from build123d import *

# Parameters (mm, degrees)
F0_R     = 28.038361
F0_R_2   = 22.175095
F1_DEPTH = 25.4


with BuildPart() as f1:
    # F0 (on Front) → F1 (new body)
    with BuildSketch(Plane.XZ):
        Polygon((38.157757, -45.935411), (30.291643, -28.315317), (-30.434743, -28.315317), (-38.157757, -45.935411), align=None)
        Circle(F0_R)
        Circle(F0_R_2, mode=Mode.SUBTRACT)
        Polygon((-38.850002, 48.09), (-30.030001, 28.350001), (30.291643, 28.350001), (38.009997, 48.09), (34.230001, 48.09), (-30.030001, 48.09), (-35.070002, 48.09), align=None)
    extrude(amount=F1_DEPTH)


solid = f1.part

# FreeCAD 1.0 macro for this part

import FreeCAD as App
import Part
import Sketcher
Q = App.Units.Quantity


def add_polygon(sketch, points):
    """Adds a closed chain of lines whose ends are joined by coincident constraints."""
    first, n = sketch.GeometryCount, len(points)
    for a, b in zip(points, points[1:] + points[:1]):
        sketch.addGeometry(Part.LineSegment(App.Vector(*a, 0), App.Vector(*b, 0)), False)
    for i in range(n):
        sketch.addConstraint(Sketcher.Constraint("Coincident", first + i, 2, first + (i + 1) % n, 1))

doc = App.newDocument("Part")
body = doc.addObject("PartDesign::Body", "Body")
body.AllowCompound = True

sketch1 = doc.addObject("Sketcher::SketchObject", "Sketch")
body.addObject(sketch1)
sketch1.AttachmentSupport = (doc.XZ_Plane, [""])
sketch1.MapMode = "FlatFace"
add_polygon(sketch1, [(38, -46), (30, -28), (-30, -28), (-38, -46)])
sketch1.addGeometry(Part.Circle(App.Vector(0, 0, 0), App.Vector(0, 0, 1), 28), False)
sketch1.addGeometry(Part.Circle(App.Vector(0, 0, 0), App.Vector(0, 0, 1), 22), False)
add_polygon(sketch1, [(-39, 48), (-30, 28), (30, 28), (38, 48)])
sketch1.addConstraint(Sketcher.Constraint("Horizontal", 1))
sketch1.addConstraint(Sketcher.Constraint("Horizontal", 3))
sketch1.addConstraint(Sketcher.Constraint("Horizontal", 7))
sketch1.addConstraint(Sketcher.Constraint("Horizontal", 9))
sketch1.addConstraint(Sketcher.Constraint("Coincident", 4, 3, -1, 1))
sketch1.addConstraint(Sketcher.Constraint("Coincident", 5, 3, -1, 1))
sketch1.addConstraint(Sketcher.Constraint("Vertical", 0, 2, 7, 2))
sketch1.addConstraint(Sketcher.Constraint("Diameter", 4, 56.076722))
sketch1.addConstraint(Sketcher.Constraint("Diameter", 5, 44.35019))
sketch1.addConstraint(Sketcher.Constraint("DistanceX", 9, 2, 9, 1, 76.859999))
sketch1.addConstraint(Sketcher.Constraint("DistanceX", 6, 2, -1, 1, 30.030001))
sketch1.addConstraint(Sketcher.Constraint("DistanceY", -1, 1, 6, 2, 28.350001))
sketch1.addConstraint(Sketcher.Constraint("DistanceY", -1, 1, 8, 2, 48.09))
sketch1.addConstraint(Sketcher.Constraint("DistanceX", 2, 2, 0, 2, 68.4494))
sketch1.addConstraint(Sketcher.Constraint("DistanceX", 1, 2, 3, 2, 68.5925))
sketch1.addConstraint(Sketcher.Constraint("DistanceX", 9, 2, 6, 2, 8.820001))
sketch1.addConstraint(Sketcher.Constraint("DistanceX", 1, 2, 1, 1, 60.726386))
sketch1.addConstraint(Sketcher.Constraint("DistanceX", 7, 1, 7, 2, 60.321644))
sketch1.addConstraint(Sketcher.Constraint("DistanceY", 2, 2, -1, 1, 45.935411))
sketch1.addConstraint(Sketcher.Constraint("Distance", 0, 19.296203))
pad1 = doc.addObject("PartDesign::Pad", "Pad")
body.addObject(pad1)
pad1.Profile = sketch1
pad1.Length = Q("1 in")

doc.recompute()
